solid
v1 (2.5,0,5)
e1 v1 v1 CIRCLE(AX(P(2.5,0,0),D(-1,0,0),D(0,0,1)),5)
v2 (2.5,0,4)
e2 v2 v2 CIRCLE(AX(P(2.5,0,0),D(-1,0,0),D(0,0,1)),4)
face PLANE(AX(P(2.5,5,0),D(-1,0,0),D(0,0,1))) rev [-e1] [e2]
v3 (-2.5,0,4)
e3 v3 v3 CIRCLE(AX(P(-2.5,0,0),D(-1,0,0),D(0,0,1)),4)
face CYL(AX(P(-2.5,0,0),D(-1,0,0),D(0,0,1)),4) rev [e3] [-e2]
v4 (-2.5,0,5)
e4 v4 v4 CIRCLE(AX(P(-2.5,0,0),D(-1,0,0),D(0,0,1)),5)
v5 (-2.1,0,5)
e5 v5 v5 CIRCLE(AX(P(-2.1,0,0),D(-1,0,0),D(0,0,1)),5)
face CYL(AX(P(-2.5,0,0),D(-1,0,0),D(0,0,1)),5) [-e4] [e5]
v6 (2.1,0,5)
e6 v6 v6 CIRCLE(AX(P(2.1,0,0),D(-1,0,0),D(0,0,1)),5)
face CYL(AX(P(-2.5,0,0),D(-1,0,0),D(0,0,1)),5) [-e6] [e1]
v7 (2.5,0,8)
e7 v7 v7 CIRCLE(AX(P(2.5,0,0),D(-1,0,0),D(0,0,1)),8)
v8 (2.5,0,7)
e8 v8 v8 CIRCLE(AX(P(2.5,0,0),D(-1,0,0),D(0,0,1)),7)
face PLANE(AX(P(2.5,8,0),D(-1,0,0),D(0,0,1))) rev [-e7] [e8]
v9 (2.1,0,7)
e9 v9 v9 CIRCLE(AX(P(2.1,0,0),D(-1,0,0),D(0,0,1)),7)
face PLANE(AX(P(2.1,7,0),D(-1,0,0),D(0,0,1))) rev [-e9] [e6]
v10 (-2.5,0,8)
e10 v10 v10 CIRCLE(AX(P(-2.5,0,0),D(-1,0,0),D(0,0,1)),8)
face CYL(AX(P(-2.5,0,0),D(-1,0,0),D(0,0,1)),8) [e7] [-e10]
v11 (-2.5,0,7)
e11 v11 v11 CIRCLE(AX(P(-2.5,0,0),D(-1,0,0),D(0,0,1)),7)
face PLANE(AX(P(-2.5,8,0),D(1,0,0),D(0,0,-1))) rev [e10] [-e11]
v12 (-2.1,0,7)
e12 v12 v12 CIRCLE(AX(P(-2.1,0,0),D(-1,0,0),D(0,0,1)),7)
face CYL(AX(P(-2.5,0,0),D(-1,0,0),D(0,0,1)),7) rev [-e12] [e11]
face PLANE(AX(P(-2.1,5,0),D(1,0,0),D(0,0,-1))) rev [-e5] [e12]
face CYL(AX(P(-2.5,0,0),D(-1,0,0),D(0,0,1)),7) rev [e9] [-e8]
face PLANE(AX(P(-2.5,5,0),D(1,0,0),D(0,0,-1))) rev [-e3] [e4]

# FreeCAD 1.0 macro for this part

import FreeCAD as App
import Part
import Sketcher
Q = App.Units.Quantity


def add_polygon(sketch, points):
    """Adds a closed chain of lines whose ends are joined by coincident constraints."""
    first, n = sketch.GeometryCount, len(points)
    for a, b in zip(points, points[1:] + points[:1]):
        sketch.addGeometry(Part.LineSegment(App.Vector(*a, 0), App.Vector(*b, 0)), False)
    for i in range(n):
        sketch.addConstraint(Sketcher.Constraint("Coincident", first + i, 2, first + (i + 1) % n, 1))

doc = App.newDocument("Part")
body = doc.addObject("PartDesign::Body", "Body")

# Sketch on XY plane
sketch1 = body.newObject("Sketcher::SketchObject", "Sketch")
sketch1.AttachmentSupport = (doc.getObject("XY_Plane"), [""])
sketch1.MapMode = "FlatFace"
add_polygon(sketch1, [(2.5, 8), (-2.5, 8), (-2.5, 7), (-2.1, 7), (-2.1, 5), (-2.5, 5), (-2.5, 4), (2.5, 4), (2.5, 5), (2.1, 5), (2.1, 7), (2.5, 7)])  # lines 0-11
sketch1.addConstraint([
    Sketcher.Constraint("Horizontal", 0),
    Sketcher.Constraint("Vertical", 1),
    Sketcher.Constraint("Horizontal", 2),
    Sketcher.Constraint("Vertical", 3),
    Sketcher.Constraint("Horizontal", 4),
    Sketcher.Constraint("Vertical", 5),
    Sketcher.Constraint("Horizontal", 6),
    Sketcher.Constraint("Vertical", 7),
    Sketcher.Constraint("Horizontal", 8),
    Sketcher.Constraint("Vertical", 9),
    Sketcher.Constraint("Horizontal", 10),
    Sketcher.Constraint("Vertical", 11),
    Sketcher.Constraint("Symmetric", 4, 2, 7, 2, -2),
    Sketcher.Constraint("Symmetric", 2, 2, 9, 2, -2),
    Sketcher.Constraint("Vertical", 1, 2, 4, 2),
    Sketcher.Constraint("Vertical", 7, 2, 10, 2),
    Sketcher.Constraint("Equal", 1, 5),
    Sketcher.Constraint("DistanceX", 0, 2, 0, 1, Q("5 mm")),
    Sketcher.Constraint("DistanceY", 1, 2, 1, 1, Q("1 mm")),
    Sketcher.Constraint("DistanceY", 3, 2, 3, 1, Q("2 mm")),
    Sketcher.Constraint("DistanceX", 2, 1, 2, 2, Q("0.4 mm")),
    Sketcher.Constraint("DistanceY", -1, 1, 0, 2, Q("8 mm")),
])
revolution = body.newObject("PartDesign::Revolution", "Revolution")
revolution.Profile = sketch1
revolution.ReferenceAxis = (sketch1, ["H_Axis"])
revolution.Angle = 360

doc.recompute()
